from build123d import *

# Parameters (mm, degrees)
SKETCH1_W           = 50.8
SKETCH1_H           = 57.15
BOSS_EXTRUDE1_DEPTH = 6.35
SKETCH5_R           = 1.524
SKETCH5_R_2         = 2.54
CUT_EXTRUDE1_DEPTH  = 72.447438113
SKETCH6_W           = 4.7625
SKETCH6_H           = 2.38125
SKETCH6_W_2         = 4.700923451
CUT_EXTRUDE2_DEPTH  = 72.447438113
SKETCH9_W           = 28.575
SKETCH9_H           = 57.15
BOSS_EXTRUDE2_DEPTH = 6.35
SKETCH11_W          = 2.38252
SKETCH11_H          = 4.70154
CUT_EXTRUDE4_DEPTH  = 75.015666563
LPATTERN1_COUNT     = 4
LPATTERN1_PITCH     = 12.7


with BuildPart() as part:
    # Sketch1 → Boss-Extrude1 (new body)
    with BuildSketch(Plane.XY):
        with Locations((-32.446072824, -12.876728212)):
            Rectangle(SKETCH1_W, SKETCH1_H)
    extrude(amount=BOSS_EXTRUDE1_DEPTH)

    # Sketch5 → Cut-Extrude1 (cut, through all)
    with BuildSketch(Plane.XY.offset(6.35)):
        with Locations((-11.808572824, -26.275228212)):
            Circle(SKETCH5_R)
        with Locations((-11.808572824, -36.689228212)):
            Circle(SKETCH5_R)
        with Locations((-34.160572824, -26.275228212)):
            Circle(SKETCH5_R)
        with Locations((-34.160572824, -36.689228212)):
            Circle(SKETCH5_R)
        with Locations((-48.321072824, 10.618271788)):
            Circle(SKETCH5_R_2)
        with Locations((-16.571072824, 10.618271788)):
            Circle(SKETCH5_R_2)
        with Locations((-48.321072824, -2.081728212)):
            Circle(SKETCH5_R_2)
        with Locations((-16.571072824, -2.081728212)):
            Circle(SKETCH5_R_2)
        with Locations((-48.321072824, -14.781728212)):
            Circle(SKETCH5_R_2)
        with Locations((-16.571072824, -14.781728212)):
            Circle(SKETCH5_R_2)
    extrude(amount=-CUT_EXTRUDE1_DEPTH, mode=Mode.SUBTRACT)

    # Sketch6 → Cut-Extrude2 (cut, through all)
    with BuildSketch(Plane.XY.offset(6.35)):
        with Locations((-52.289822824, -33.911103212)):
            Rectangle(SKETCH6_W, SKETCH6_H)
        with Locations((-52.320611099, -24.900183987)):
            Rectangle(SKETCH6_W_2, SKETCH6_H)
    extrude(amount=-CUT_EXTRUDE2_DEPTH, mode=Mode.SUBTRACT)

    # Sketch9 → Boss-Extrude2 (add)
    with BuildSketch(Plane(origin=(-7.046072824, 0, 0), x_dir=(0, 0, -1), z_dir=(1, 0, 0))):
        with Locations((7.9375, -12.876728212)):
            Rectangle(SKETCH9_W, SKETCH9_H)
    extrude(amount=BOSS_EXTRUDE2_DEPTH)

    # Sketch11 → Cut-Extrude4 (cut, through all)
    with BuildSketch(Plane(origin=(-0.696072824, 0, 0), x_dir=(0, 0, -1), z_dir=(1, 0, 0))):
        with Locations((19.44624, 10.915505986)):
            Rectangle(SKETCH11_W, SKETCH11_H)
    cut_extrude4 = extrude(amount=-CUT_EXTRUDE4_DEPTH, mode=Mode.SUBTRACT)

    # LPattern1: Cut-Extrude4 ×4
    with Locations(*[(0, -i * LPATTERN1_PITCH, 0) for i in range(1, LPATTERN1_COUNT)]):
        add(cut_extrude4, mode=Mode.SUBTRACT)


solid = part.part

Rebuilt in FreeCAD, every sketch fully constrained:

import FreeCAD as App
import Part
import Sketcher
from FreeCAD import Vector
Q = App.Units.Quantity

doc = App.newDocument("Part")
params = doc.addObject("Spreadsheet::Sheet", "Params")
for row, (alias, value) in enumerate([
    ("sketch1_width", "2 in"),
    ("sketch1_height", "2.25 in"),
    ("pad1_length", "0.25 in"),
    ("sketch2_diameter", "0.2 in"),
    ("sketch2_diameter2", "0.12 in"),
    ("sketch3_width", "0.1875 in"),
    ("sketch3_height", "0.09375 in"),
    ("sketch4_width", "2.25 in"),
    ("sketch4_height", "1.125 in"),
    ("pad2_length", "0.25 in"),
    ("linearpattern_pitch", "0.5 in"),
], start=1):
    params.set(f"A{row}", alias)
    params.set(f"B{row}", "=" + value)
    params.setAlias(f"B{row}", alias)

body = doc.addObject("PartDesign::Body", "Body")

sketch1 = body.newObject("Sketcher::SketchObject", "Sketch")
sketch1.AttachmentSupport = (doc.getObject("XY_Plane"), [""])
sketch1.MapMode = "FlatFace"
sketch1.addGeometry([
    Part.LineSegment(Vector(-58, 16, 0), Vector(-58, -41, 0)),
    Part.LineSegment(Vector(-58, -41, 0), Vector(-7, -41, 0)),
    Part.LineSegment(Vector(-7, -41, 0), Vector(-7, 16, 0)),
    Part.LineSegment(Vector(-7, 16, 0), Vector(-58, 16, 0)),
], False)
sketch1.addConstraint([
    Sketcher.Constraint("Coincident", 0, 2, 1, 1),
    Sketcher.Constraint("Coincident", 1, 2, 2, 1),
    Sketcher.Constraint("Coincident", 2, 2, 3, 1),
    Sketcher.Constraint("Coincident", 3, 2, 0, 1),
    Sketcher.Constraint("Vertical", 0),
    Sketcher.Constraint("Horizontal", 1),
    Sketcher.Constraint("Vertical", 2),
    Sketcher.Constraint("Horizontal", 3),
    Sketcher.Constraint("DistanceX", 1, 1, 1, 2, Q("2 in")),
    Sketcher.Constraint("DistanceY", 0, 2, 0, 1, Q("2.25 in")),
    Sketcher.Constraint("DistanceY", 0, 2, -1, 1, Q("41.451728 mm")),
    Sketcher.Constraint("DistanceX", 0, 2, -1, 1, Q("57.846073 mm")),
])
sketch1.setExpression("Constraints[8]", "Params.sketch1_width")
sketch1.setExpression("Constraints[9]", "Params.sketch1_height")
pad1 = body.newObject("PartDesign::Pad", "Pad")
pad1.Profile = sketch1
pad1.setExpression("Length", "Params.pad1_length")

sketch2 = body.newObject("Sketcher::SketchObject", "Sketch001")
sketch2.AttachmentSupport = (doc.getObject("XY_Plane"), [""])
sketch2.MapMode = "FlatFace"
sketch2.AttachmentOffset = App.Placement(Vector(0, 0, 0.25 * 25.4), App.Rotation())
sketch2.addGeometry([
    Part.Circle(Vector(-11.8, -26.3, 0), Vector(0, 0, 1), 1.5),
    Part.Circle(Vector(-11.8, -36.7, 0), Vector(0, 0, 1), 1.5),
    Part.Circle(Vector(-34.2, -26.3, 0), Vector(0, 0, 1), 1.5),
    Part.Circle(Vector(-34.2, -36.7, 0), Vector(0, 0, 1), 1.5),
    Part.Circle(Vector(-48.3, 10.6, 0), Vector(0, 0, 1), 2.5),
    Part.Circle(Vector(-16.6, 10.6, 0), Vector(0, 0, 1), 2.5),
    Part.Circle(Vector(-48.3, -2.1, 0), Vector(0, 0, 1), 2.5),
    Part.Circle(Vector(-16.6, -2.1, 0), Vector(0, 0, 1), 2.5),
    Part.Circle(Vector(-48.3, -14.8, 0), Vector(0, 0, 1), 2.5),
    Part.Circle(Vector(-16.6, -14.8, 0), Vector(0, 0, 1), 2.5),
], False)
sketch2.addConstraint([
    Sketcher.Constraint("Equal", 0, 1),
    Sketcher.Constraint("Equal", 1, 2),
    Sketcher.Constraint("Equal", 2, 3),
    Sketcher.Constraint("Equal", 4, 5),
    Sketcher.Constraint("Equal", 5, 6),
    Sketcher.Constraint("Equal", 6, 7),
    Sketcher.Constraint("Equal", 7, 8),
    Sketcher.Constraint("Equal", 8, 9),
    Sketcher.Constraint("Horizontal", 0, 3, 2, 3),
    Sketcher.Constraint("Horizontal", 1, 3, 3, 3),
    Sketcher.Constraint("Horizontal", 4, 3, 5, 3),
    Sketcher.Constraint("Horizontal", 6, 3, 7, 3),
    Sketcher.Constraint("Horizontal", 8, 3, 9, 3),
    Sketcher.Constraint("Vertical", 0, 3, 1, 3),
    Sketcher.Constraint("Vertical", 2, 3, 3, 3),
    Sketcher.Constraint("Vertical", 4, 3, 6, 3),
    Sketcher.Constraint("Vertical", 5, 3, 7, 3),
    Sketcher.Constraint("Vertical", 6, 3, 8, 3),
    Sketcher.Constraint("Vertical", 7, 3, 9, 3),
    Sketcher.Constraint("Diameter", 4, Q("0.2 in")),
    Sketcher.Constraint("Diameter", 0, Q("0.12 in")),
    Sketcher.Constraint("DistanceY", 8, 3, 4, 3, Q("1 in")),
    Sketcher.Constraint("DistanceY", 6, 3, 4, 3, Q("0.5 in")),
    Sketcher.Constraint("DistanceY", 1, 3, 0, 3, Q("0.41 in")),
    Sketcher.Constraint("DistanceX", 2, 3, 0, 3, Q("0.88 in")),
    Sketcher.Constraint("DistanceX", 4, 3, 5, 3, Q("1.25 in")),
    Sketcher.Constraint("DistanceX", 4, 3, 0, 3, Q("1.4375 in")),
    Sketcher.Constraint("DistanceY", 2, 3, 4, 3, Q("1.4525 in")),
    Sketcher.Constraint("DistanceY", 0, 3, -1, 1, Q("26.275228 mm")),
    Sketcher.Constraint("DistanceX", 0, 3, -1, 1, Q("11.808573 mm")),
])
sketch2.setExpression("Constraints[19]", "Params.sketch2_diameter")
sketch2.setExpression("Constraints[20]", "Params.sketch2_diameter2")
pocket1 = body.newObject("PartDesign::Pocket", "Pocket")
pocket1.Profile = sketch2
pocket1.Type = "ThroughAll"

sketch3 = body.newObject("Sketcher::SketchObject", "Sketch002")
sketch3.AttachmentSupport = (doc.getObject("XY_Plane"), [""])
sketch3.MapMode = "FlatFace"
sketch3.AttachmentOffset = App.Placement(Vector(0, 0, 0.25 * 25.4), App.Rotation())
sketch3.addGeometry([
    Part.LineSegment(Vector(-54.7, -32.7, 0), Vector(-54.7, -35.1, 0)),
    Part.LineSegment(Vector(-54.7, -35.1, 0), Vector(-49.9, -35.1, 0)),
    Part.LineSegment(Vector(-49.9, -35.1, 0), Vector(-49.9, -32.7, 0)),
    Part.LineSegment(Vector(-49.9, -32.7, 0), Vector(-54.7, -32.7, 0)),
    Part.LineSegment(Vector(-54.7, -23.7, 0), Vector(-54.7, -26.1, 0)),
    Part.LineSegment(Vector(-54.7, -26.1, 0), Vector(-50, -26.1, 0)),
    Part.LineSegment(Vector(-50, -26.1, 0), Vector(-50, -23.7, 0)),
    Part.LineSegment(Vector(-50, -23.7, 0), Vector(-54.7, -23.7, 0)),
], False)
sketch3.addConstraint([
    Sketcher.Constraint("Coincident", 0, 2, 1, 1),
    Sketcher.Constraint("Coincident", 1, 2, 2, 1),
    Sketcher.Constraint("Coincident", 2, 2, 3, 1),
    Sketcher.Constraint("Coincident", 3, 2, 0, 1),
    Sketcher.Constraint("Coincident", 4, 2, 5, 1),
    Sketcher.Constraint("Coincident", 5, 2, 6, 1),
    Sketcher.Constraint("Coincident", 6, 2, 7, 1),
    Sketcher.Constraint("Coincident", 7, 2, 4, 1),
    Sketcher.Constraint("Vertical", 0),
    Sketcher.Constraint("Horizontal", 1),
    Sketcher.Constraint("Vertical", 2),
    Sketcher.Constraint("Horizontal", 3),
    Sketcher.Constraint("Vertical", 4),
    Sketcher.Constraint("Horizontal", 5),
    Sketcher.Constraint("Vertical", 6),
    Sketcher.Constraint("Horizontal", 7),
    Sketcher.Constraint("Vertical", 3, 2, 4, 2),
    Sketcher.Constraint("Equal", 2, 4),
    Sketcher.Constraint("DistanceX", 1, 1, 1, 2, Q("0.1875 in")),
    Sketcher.Constraint("DistanceY", 0, 2, 0, 1, Q("0.09375 in")),
    Sketcher.Constraint("DistanceX", 5, 1, 5, 2, Q("4.700923 mm")),
    Sketcher.Constraint("DistanceY", 0, 2, -1, 1, Q("35.101728 mm")),
    Sketcher.Constraint("DistanceY", 4, 2, -1, 1, Q("26.090809 mm")),
    Sketcher.Constraint("DistanceX", 5, 2, -1, 1, Q("49.970149 mm")),
])
sketch3.setExpression("Constraints[18]", "Params.sketch3_width")
sketch3.setExpression("Constraints[19]", "Params.sketch3_height")
pocket2 = body.newObject("PartDesign::Pocket", "Pocket001")
pocket2.Profile = sketch3
pocket2.Type = "ThroughAll"

sketch4 = body.newObject("Sketcher::SketchObject", "Sketch003")
sketch4.AttachmentSupport = (doc.getObject("YZ_Plane"), [""])
sketch4.MapMode = "FlatFace"
sketch4.AttachmentOffset = App.Placement(Vector(0, 0, -7.046073), App.Rotation())
sketch4.addGeometry([
    Part.LineSegment(Vector(16, 6, 0), Vector(-41, 6, 0)),
    Part.LineSegment(Vector(-41, 6, 0), Vector(-41, -22, 0)),
    Part.LineSegment(Vector(-41, -22, 0), Vector(16, -22, 0)),
    Part.LineSegment(Vector(16, -22, 0), Vector(16, 6, 0)),
], False)
sketch4.addConstraint([
    Sketcher.Constraint("Coincident", 0, 2, 1, 1),
    Sketcher.Constraint("Coincident", 1, 2, 2, 1),
    Sketcher.Constraint("Coincident", 2, 2, 3, 1),
    Sketcher.Constraint("Coincident", 3, 2, 0, 1),
    Sketcher.Constraint("Horizontal", 0),
    Sketcher.Constraint("Vertical", 1),
    Sketcher.Constraint("Horizontal", 2),
    Sketcher.Constraint("Vertical", 3),
    Sketcher.Constraint("DistanceX", 0, 2, 0, 1, Q("2.25 in")),
    Sketcher.Constraint("DistanceY", 1, 2, 1, 1, Q("1.125 in")),
    Sketcher.Constraint("DistanceY", -1, 1, 0, 2, Q("0.25 in")),
    Sketcher.Constraint("DistanceX", 0, 2, -1, 1, Q("41.451728 mm")),
])
sketch4.setExpression("Constraints[8]", "Params.sketch4_width")
sketch4.setExpression("Constraints[9]", "Params.sketch4_height")
pad2 = body.newObject("PartDesign::Pad", "Pad001")
pad2.Profile = sketch4
pad2.setExpression("Length", "Params.pad2_length")

sketch5 = body.newObject("Sketcher::SketchObject", "Sketch004")
sketch5.AttachmentSupport = (doc.getObject("YZ_Plane"), [""])
sketch5.MapMode = "FlatFace"
sketch5.AttachmentOffset = App.Placement(Vector(0, 0, -0.696073), App.Rotation())
sketch5.addGeometry([
    Part.LineSegment(Vector(13.3, -18.3, 0), Vector(8.6, -18.3, 0)),
    Part.LineSegment(Vector(8.6, -18.3, 0), Vector(8.6, -20.6, 0)),
    Part.LineSegment(Vector(8.6, -20.6, 0), Vector(13.3, -20.6, 0)),
    Part.LineSegment(Vector(13.3, -20.6, 0), Vector(13.3, -18.3, 0)),
], False)
sketch5.addConstraint([
    Sketcher.Constraint("Coincident", 0, 2, 1, 1),
    Sketcher.Constraint("Coincident", 1, 2, 2, 1),
    Sketcher.Constraint("Coincident", 2, 2, 3, 1),
    Sketcher.Constraint("Coincident", 3, 2, 0, 1),
    Sketcher.Constraint("Horizontal", 0),
    Sketcher.Constraint("Vertical", 1),
    Sketcher.Constraint("Horizontal", 2),
    Sketcher.Constraint("Vertical", 3),
    Sketcher.Constraint("DistanceX", 0, 2, 0, 1, Q("0.1851 in")),
    Sketcher.Constraint("DistanceY", 1, 2, 1, 1, Q("0.0938 in")),
    Sketcher.Constraint("DistanceY", 1, 2, -1, 1, Q("0.8125 in")),
    Sketcher.Constraint("DistanceX", -1, 1, 0, 2, Q("8.564736 mm")),
])
pocket3 = body.newObject("PartDesign::Pocket", "Pocket002")
pocket3.Profile = sketch5
pocket3.Type = "ThroughAll"
doc.recompute()

linearpattern = body.newObject("PartDesign::LinearPattern", "LinearPattern")
linearpattern.Originals = [pocket3]
linearpattern.Direction = (doc.getObject("Y_Axis"), [""])
linearpattern.Mode = "offset"
linearpattern.setExpression("Offset", "Params.linearpattern_pitch")
linearpattern.Occurrences = 4
linearpattern.Reversed = True
body.Tip = linearpattern

doc.recompute()
